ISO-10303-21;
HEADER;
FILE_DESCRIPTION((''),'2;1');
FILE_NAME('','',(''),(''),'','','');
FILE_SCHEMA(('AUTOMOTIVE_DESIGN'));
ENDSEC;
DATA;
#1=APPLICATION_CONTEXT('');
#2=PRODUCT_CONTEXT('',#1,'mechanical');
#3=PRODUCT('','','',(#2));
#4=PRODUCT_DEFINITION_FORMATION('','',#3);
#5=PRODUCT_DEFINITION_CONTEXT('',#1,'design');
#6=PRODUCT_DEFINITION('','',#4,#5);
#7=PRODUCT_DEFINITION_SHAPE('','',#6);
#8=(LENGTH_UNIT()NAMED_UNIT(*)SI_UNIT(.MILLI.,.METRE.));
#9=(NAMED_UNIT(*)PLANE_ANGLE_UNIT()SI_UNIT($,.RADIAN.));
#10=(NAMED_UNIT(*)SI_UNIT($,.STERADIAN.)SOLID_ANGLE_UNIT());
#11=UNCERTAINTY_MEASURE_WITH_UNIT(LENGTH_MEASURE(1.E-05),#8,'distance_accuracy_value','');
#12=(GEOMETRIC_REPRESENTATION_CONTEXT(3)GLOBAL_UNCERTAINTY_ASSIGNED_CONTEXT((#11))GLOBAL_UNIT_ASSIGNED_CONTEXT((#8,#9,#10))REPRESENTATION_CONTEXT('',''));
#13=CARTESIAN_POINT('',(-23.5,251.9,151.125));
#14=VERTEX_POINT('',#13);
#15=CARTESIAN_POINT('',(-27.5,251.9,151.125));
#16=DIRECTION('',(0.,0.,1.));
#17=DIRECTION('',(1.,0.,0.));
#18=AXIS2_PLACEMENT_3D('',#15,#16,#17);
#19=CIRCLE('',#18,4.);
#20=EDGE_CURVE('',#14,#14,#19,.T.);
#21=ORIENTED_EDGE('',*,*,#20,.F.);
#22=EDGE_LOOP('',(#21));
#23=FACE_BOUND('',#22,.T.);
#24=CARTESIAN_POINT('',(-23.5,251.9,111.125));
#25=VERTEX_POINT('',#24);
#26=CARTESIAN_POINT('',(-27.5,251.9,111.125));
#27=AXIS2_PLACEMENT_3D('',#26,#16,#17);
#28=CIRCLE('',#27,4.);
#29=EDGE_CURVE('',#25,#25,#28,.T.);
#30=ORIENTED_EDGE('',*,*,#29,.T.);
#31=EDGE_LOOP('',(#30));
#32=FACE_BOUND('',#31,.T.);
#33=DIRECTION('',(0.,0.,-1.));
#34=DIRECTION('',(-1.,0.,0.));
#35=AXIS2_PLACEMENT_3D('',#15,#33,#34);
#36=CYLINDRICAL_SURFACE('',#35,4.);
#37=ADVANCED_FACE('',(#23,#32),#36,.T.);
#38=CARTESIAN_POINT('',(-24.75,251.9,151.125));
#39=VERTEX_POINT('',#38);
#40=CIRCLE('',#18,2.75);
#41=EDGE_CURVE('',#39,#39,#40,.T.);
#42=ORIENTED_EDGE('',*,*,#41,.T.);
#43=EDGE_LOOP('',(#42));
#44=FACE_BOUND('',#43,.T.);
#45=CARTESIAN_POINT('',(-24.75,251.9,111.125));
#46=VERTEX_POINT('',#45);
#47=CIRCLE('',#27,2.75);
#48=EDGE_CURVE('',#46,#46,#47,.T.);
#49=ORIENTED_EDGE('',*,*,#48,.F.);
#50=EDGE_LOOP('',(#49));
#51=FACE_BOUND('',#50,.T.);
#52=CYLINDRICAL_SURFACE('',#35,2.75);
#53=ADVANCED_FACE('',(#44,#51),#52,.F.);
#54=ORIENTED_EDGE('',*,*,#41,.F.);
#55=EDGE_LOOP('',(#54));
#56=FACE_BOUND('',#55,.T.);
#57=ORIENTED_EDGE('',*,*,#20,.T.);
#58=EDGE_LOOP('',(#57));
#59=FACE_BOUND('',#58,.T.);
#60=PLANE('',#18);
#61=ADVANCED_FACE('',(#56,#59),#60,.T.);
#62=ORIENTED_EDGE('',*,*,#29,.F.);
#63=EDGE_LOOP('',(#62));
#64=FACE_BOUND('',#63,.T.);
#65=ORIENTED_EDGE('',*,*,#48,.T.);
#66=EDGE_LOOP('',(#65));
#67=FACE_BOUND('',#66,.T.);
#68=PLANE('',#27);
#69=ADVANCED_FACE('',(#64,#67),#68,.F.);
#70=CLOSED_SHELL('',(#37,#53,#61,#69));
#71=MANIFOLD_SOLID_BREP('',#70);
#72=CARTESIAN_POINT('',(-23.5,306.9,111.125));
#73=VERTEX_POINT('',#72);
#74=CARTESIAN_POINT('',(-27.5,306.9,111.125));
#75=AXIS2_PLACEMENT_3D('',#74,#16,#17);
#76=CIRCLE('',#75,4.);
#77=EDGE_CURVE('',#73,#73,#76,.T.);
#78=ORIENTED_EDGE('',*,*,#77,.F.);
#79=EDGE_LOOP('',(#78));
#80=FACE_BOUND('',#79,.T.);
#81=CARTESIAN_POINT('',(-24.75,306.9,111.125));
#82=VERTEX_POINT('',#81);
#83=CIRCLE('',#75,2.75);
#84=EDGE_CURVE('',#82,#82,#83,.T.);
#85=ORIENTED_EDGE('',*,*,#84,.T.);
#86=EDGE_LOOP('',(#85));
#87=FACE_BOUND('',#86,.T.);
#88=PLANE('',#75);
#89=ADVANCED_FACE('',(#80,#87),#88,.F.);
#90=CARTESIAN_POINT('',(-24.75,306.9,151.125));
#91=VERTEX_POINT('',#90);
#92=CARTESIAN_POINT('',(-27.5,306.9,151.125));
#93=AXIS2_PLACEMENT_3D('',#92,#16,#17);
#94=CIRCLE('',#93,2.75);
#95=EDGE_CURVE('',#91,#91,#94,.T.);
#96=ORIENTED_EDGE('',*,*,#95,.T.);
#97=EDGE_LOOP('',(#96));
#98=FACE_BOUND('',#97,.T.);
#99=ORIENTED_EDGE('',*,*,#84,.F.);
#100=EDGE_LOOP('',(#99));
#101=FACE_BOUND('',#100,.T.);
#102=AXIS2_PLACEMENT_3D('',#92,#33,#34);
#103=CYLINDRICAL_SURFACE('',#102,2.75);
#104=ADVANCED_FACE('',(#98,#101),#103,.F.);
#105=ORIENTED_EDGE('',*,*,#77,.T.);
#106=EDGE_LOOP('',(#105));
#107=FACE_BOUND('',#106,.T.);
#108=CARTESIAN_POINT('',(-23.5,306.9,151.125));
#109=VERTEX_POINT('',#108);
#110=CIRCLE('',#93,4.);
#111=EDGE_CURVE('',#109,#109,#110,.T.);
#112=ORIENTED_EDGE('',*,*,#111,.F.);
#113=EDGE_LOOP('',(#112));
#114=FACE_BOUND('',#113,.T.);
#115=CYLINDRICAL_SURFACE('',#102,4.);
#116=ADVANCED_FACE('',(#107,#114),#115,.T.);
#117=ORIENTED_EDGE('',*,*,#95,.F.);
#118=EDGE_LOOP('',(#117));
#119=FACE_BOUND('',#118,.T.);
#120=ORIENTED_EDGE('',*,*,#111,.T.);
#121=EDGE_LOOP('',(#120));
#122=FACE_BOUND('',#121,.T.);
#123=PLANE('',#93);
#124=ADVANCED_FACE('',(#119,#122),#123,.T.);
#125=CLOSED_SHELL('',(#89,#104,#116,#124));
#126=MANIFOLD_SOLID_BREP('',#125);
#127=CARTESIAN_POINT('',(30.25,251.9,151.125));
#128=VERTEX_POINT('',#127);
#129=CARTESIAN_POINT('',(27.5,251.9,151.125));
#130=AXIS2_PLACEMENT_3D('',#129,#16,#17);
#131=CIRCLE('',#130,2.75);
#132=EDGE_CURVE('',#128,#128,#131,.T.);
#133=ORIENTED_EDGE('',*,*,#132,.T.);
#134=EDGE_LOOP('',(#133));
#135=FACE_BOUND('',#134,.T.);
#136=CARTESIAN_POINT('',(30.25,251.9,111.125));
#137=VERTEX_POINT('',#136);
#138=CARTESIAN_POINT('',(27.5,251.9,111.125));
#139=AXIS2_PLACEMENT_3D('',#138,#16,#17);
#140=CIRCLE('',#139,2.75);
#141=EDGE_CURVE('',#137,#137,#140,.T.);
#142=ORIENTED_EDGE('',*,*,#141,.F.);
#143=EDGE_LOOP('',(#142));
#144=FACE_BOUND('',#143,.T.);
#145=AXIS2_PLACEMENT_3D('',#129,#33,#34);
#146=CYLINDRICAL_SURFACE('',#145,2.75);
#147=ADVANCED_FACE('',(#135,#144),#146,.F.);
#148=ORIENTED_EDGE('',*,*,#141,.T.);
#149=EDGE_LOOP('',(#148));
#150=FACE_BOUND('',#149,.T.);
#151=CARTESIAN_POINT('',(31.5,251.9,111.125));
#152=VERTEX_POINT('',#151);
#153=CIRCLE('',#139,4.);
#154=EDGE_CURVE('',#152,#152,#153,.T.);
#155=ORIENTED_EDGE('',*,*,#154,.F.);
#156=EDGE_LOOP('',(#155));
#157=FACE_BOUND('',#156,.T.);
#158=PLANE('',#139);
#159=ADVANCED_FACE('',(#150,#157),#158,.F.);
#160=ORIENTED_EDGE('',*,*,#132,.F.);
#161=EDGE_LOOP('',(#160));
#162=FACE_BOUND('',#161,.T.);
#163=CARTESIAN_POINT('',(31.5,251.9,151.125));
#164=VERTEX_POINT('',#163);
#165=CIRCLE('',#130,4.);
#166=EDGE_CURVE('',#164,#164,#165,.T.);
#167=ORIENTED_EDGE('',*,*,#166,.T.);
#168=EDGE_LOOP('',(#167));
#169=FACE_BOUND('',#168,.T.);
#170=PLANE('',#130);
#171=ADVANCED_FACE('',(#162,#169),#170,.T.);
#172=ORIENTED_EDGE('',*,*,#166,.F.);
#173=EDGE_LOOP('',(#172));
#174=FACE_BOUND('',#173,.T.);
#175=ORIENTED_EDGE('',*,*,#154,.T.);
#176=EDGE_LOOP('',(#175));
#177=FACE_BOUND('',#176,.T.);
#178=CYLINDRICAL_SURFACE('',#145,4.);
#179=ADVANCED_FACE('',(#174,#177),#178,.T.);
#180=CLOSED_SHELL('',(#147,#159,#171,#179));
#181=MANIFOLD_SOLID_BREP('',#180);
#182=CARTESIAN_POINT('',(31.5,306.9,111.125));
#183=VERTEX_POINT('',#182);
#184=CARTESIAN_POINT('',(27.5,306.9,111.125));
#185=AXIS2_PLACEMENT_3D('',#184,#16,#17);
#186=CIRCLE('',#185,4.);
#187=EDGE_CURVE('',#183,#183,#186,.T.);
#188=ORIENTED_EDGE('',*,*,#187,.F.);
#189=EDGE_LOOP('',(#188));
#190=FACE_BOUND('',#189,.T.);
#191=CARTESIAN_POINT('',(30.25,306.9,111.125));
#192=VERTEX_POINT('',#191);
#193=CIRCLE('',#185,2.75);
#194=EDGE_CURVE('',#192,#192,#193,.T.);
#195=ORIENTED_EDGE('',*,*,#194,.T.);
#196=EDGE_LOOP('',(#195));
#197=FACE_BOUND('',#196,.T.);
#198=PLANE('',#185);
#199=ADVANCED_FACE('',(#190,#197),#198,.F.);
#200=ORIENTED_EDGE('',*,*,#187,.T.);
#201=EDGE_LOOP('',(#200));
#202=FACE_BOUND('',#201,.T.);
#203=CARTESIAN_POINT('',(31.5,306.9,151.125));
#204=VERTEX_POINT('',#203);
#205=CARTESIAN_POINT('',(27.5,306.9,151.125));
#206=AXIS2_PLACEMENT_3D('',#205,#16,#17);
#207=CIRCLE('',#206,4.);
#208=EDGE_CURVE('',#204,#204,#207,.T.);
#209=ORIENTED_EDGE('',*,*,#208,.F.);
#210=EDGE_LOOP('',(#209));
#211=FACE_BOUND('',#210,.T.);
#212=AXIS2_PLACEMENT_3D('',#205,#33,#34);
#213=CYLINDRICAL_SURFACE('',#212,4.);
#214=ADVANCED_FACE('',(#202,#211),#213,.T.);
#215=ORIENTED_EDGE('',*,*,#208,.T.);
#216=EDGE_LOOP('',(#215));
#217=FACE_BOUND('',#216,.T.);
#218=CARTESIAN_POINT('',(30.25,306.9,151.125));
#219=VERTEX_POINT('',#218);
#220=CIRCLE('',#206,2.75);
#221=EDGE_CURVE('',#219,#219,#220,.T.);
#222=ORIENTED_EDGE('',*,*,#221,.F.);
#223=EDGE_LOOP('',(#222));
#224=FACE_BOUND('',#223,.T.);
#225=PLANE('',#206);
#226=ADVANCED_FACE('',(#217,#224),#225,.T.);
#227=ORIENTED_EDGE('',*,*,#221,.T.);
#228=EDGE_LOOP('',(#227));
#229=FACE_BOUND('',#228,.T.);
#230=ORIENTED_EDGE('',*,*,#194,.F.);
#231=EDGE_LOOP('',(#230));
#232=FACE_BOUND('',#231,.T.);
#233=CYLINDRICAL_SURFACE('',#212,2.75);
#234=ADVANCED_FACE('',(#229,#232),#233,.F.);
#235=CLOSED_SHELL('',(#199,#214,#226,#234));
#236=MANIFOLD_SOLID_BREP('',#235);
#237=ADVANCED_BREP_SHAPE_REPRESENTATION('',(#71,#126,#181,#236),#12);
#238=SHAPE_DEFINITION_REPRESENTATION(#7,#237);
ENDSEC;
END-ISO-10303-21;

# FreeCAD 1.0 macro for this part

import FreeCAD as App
import Part
import Sketcher
from FreeCAD import Vector
Q = App.Units.Quantity

doc = App.newDocument("Part")
params = doc.addObject("Spreadsheet::Sheet", "Params")
for row, (alias, value) in enumerate([
    ("sketch1_diameter", "8 mm"),
    ("sketch1_diameter2", "5.5 mm"),
    ("pad1_length", "40 mm"),
    ("sketch2_diameter", "8 mm"),
    ("sketch2_diameter2", "5.5 mm"),
    ("pad2_length", "40 mm"),
    ("sketch3_diameter", "8 mm"),
    ("sketch3_diameter2", "5.5 mm"),
    ("pad3_length", "40 mm"),
    ("sketch4_diameter", "8 mm"),
    ("sketch4_diameter2", "5.5 mm"),
    ("pad4_length", "40 mm"),
], start=1):
    params.set(f"A{row}", alias)
    params.set(f"B{row}", "=" + value)
    params.setAlias(f"B{row}", alias)

body = doc.addObject("PartDesign::Body", "Body")

sketch1 = body.newObject("Sketcher::SketchObject", "Sketch")
sketch1.AttachmentSupport = (doc.getObject("XY_Plane"), [""])
sketch1.MapMode = "FlatFace"
sketch1.AttachmentOffset = App.Placement(Vector(0, 0, 111.125), App.Rotation())
sketch1.addGeometry([
    Part.Circle(Vector(27.5, 306.9, 0), Vector(0, 0, 1), 4),
    Part.Circle(Vector(27.5, 306.9, 0), Vector(0, 0, 1), 2.8),
], False)
sketch1.addConstraint([
    Sketcher.Constraint("Coincident", 1, 3, 0, 3),
    Sketcher.Constraint("Diameter", 0, Q("8 mm")),
    Sketcher.Constraint("Diameter", 1, Q("5.5 mm")),
    Sketcher.Constraint("DistanceX", -1, 1, 0, 3, Q("27.5 mm")),
    Sketcher.Constraint("DistanceY", -1, 1, 0, 3, Q("306.9 mm")),
])
sketch1.setExpression("Constraints[1]", "Params.sketch1_diameter")
sketch1.setExpression("Constraints[2]", "Params.sketch1_diameter2")
pad1 = body.newObject("PartDesign::Pad", "Pad")
pad1.Profile = sketch1
pad1.setExpression("Length", "Params.pad1_length")
body2 = doc.addObject("PartDesign::Body", "Body001")

sketch2 = body2.newObject("Sketcher::SketchObject", "Sketch001")
sketch2.AttachmentSupport = (doc.getObject("XY_Plane001"), [""])
sketch2.MapMode = "FlatFace"
sketch2.AttachmentOffset = App.Placement(Vector(0, 0, 111.125), App.Rotation())
sketch2.addGeometry([
    Part.Circle(Vector(-27.5, 306.9, 0), Vector(0, 0, 1), 4),
    Part.Circle(Vector(-27.5, 306.9, 0), Vector(0, 0, 1), 2.8),
], False)
sketch2.addConstraint([
    Sketcher.Constraint("Coincident", 1, 3, 0, 3),
    Sketcher.Constraint("Diameter", 0, Q("8 mm")),
    Sketcher.Constraint("Diameter", 1, Q("5.5 mm")),
    Sketcher.Constraint("DistanceX", 0, 3, -1, 1, Q("27.5 mm")),
    Sketcher.Constraint("DistanceY", -1, 1, 0, 3, Q("306.9 mm")),
])
sketch2.setExpression("Constraints[1]", "Params.sketch2_diameter")
sketch2.setExpression("Constraints[2]", "Params.sketch2_diameter2")
pad2 = body2.newObject("PartDesign::Pad", "Pad001")
pad2.Profile = sketch2
pad2.setExpression("Length", "Params.pad2_length")
body3 = doc.addObject("PartDesign::Body", "Body002")

sketch3 = body3.newObject("Sketcher::SketchObject", "Sketch002")
sketch3.AttachmentSupport = (doc.getObject("XY_Plane002"), [""])
sketch3.MapMode = "FlatFace"
sketch3.AttachmentOffset = App.Placement(Vector(0, 0, 111.125), App.Rotation())
sketch3.addGeometry([
    Part.Circle(Vector(-27.5, 251.9, 0), Vector(0, 0, 1), 4),
    Part.Circle(Vector(-27.5, 251.9, 0), Vector(0, 0, 1), 2.8),
], False)
sketch3.addConstraint([
    Sketcher.Constraint("Coincident", 1, 3, 0, 3),
    Sketcher.Constraint("Diameter", 0, Q("8 mm")),
    Sketcher.Constraint("Diameter", 1, Q("5.5 mm")),
    Sketcher.Constraint("DistanceX", 0, 3, -1, 1, Q("27.5 mm")),
    Sketcher.Constraint("DistanceY", -1, 1, 0, 3, Q("251.9 mm")),
])
sketch3.setExpression("Constraints[1]", "Params.sketch3_diameter")
sketch3.setExpression("Constraints[2]", "Params.sketch3_diameter2")
pad3 = body3.newObject("PartDesign::Pad", "Pad002")
pad3.Profile = sketch3
pad3.setExpression("Length", "Params.pad3_length")
body4 = doc.addObject("PartDesign::Body", "Body003")

sketch4 = body4.newObject("Sketcher::SketchObject", "Sketch003")
sketch4.AttachmentSupport = (doc.getObject("XY_Plane003"), [""])
sketch4.MapMode = "FlatFace"
sketch4.AttachmentOffset = App.Placement(Vector(0, 0, 111.125), App.Rotation())
sketch4.addGeometry([
    Part.Circle(Vector(27.5, 251.9, 0), Vector(0, 0, 1), 4),
    Part.Circle(Vector(27.5, 251.9, 0), Vector(0, 0, 1), 2.8),
], False)
sketch4.addConstraint([
    Sketcher.Constraint("Coincident", 1, 3, 0, 3),
    Sketcher.Constraint("Diameter", 0, Q("8 mm")),
    Sketcher.Constraint("Diameter", 1, Q("5.5 mm")),
    Sketcher.Constraint("DistanceX", -1, 1, 0, 3, Q("27.5 mm")),
    Sketcher.Constraint("DistanceY", -1, 1, 0, 3, Q("251.9 mm")),
])
sketch4.setExpression("Constraints[1]", "Params.sketch4_diameter")
sketch4.setExpression("Constraints[2]", "Params.sketch4_diameter2")
pad4 = body4.newObject("PartDesign::Pad", "Pad003")
pad4.Profile = sketch4
pad4.setExpression("Length", "Params.pad4_length")

doc.recompute()
